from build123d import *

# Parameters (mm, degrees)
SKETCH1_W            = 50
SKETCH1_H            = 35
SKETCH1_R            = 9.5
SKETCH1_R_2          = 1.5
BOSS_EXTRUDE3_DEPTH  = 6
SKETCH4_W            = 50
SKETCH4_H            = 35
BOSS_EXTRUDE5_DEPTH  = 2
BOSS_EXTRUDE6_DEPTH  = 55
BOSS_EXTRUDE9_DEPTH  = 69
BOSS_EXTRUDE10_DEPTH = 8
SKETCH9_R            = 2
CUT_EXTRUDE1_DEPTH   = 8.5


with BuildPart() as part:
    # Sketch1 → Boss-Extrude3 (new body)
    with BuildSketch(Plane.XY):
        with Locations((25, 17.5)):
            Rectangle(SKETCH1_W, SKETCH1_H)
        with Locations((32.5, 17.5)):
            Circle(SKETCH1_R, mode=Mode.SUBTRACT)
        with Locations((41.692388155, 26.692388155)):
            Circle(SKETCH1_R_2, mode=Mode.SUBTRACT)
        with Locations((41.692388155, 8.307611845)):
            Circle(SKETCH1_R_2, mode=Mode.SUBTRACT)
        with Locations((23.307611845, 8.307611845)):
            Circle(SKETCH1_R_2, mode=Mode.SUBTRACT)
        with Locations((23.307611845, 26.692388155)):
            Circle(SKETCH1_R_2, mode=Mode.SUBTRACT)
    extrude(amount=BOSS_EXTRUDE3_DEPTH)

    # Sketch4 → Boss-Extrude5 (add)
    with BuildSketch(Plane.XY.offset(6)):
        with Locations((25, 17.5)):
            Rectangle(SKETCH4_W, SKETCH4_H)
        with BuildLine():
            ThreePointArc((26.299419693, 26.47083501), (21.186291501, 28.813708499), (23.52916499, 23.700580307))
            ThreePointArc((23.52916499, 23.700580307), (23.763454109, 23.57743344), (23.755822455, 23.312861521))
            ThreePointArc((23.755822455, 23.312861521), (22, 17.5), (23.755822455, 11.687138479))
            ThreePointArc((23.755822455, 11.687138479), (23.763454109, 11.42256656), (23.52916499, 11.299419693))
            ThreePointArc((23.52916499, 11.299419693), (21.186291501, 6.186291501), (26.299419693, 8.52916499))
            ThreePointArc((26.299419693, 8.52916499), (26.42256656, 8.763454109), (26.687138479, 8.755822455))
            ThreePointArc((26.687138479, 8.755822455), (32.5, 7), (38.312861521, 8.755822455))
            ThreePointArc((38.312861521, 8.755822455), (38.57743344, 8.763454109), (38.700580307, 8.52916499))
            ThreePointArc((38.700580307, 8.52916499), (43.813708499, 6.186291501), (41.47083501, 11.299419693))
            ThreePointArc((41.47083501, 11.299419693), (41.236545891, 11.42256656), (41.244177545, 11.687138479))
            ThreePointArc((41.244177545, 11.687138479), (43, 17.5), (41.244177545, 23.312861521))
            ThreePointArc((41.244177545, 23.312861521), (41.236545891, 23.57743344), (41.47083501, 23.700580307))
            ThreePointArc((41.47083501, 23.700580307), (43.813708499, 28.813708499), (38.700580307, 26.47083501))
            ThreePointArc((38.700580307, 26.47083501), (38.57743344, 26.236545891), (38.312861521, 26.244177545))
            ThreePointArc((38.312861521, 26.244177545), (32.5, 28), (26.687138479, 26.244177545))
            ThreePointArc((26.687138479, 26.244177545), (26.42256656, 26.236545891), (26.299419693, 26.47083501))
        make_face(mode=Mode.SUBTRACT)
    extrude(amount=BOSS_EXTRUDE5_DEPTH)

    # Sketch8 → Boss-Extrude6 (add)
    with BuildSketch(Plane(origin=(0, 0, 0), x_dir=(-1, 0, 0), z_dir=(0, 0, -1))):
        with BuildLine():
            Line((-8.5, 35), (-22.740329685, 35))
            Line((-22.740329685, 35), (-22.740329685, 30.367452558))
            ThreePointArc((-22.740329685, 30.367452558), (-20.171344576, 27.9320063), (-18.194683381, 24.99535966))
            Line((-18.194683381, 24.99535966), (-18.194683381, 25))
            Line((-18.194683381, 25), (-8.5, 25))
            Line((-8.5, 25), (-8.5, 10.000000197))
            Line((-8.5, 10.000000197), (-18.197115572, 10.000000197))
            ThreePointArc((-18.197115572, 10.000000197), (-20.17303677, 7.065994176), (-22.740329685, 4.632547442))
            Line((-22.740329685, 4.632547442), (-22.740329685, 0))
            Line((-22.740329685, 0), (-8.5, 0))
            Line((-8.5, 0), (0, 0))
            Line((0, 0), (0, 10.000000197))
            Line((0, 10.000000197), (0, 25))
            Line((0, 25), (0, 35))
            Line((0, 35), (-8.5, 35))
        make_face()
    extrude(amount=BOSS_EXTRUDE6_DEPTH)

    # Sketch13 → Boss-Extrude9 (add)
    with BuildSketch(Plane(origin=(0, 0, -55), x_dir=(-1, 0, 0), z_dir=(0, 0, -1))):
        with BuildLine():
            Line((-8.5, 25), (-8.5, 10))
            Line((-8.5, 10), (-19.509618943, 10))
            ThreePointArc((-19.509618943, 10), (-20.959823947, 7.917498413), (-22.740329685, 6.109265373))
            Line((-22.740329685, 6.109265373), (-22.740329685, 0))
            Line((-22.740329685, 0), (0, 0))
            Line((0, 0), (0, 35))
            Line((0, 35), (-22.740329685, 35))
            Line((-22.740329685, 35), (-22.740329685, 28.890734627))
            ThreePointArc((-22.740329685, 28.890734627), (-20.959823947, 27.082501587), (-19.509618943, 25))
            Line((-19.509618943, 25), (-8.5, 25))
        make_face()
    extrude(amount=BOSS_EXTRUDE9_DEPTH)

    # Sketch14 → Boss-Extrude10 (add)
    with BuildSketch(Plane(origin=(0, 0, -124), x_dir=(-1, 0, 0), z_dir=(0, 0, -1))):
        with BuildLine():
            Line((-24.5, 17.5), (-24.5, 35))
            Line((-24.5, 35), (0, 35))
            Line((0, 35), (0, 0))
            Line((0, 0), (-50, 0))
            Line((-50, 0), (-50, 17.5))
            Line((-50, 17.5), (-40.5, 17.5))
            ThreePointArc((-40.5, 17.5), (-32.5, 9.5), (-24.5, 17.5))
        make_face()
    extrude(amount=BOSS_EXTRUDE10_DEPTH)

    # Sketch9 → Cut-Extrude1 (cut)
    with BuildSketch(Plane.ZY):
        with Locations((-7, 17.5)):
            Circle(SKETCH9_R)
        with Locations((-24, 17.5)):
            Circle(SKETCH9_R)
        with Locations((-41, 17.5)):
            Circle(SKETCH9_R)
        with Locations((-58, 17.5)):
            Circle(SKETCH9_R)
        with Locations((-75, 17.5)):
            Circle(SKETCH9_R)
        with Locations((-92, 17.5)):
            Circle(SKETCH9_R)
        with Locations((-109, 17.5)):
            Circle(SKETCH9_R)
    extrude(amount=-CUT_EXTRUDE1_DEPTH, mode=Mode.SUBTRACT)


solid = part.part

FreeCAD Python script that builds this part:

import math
import FreeCAD as App
import Part
import Sketcher
Q = App.Units.Quantity

doc = App.newDocument("Part")
params = doc.addObject("Spreadsheet::Sheet", "Params")
for row, (alias, value) in enumerate([
    ("sketch1_diameter", "3 mm"),
    ("sketch1_diameter2", "19 mm"),
    ("sketch1_width", "50 mm"),
    ("sketch1_height", "35 mm"),
    ("pad1_length", "6 mm"),
    ("sketch2_radius", "3 mm"),
    ("sketch2_radius2", "3 mm"),
    ("sketch2_radius3", "3 mm"),
    ("sketch2_radius4", "3 mm"),
    ("sketch2_radius5", "10.5 mm"),
    ("pad2_length", "2 mm"),
    ("sketch3_height", "15 mm"),
    ("sketch3_height2", "35 mm"),
    ("sketch3_radius", "16.15 mm"),
    ("pad3_length", "55 mm"),
    ("sketch4_radius", "15 mm"),
    ("sketch4_height", "15 mm"),
    ("sketch4_height2", "35 mm"),
    ("pad4_length", "69 mm"),
    ("sketch5_radius", "8 mm"),
    ("sketch5_width", "50 mm"),
    ("sketch5_height", "35 mm"),
    ("sketch5_width2", "9.5 mm"),
    ("pad5_length", "8 mm"),
    ("sketch6_diameter", "4 mm"),
    ("pocket1_length", "8.5 mm"),
], start=1):
    params.set(f"A{row}", alias)
    params.set(f"B{row}", "=" + value)
    params.setAlias(f"B{row}", alias)

body = doc.addObject("PartDesign::Body", "Body")

# Sketch on XY plane
sketch1 = body.newObject("Sketcher::SketchObject", "Sketch")
sketch1.AttachmentSupport = (doc.getObject("XY_Plane"), [""])
sketch1.MapMode = "FlatFace"
sketch1.addGeometry(Part.LineSegment(App.Vector(0, 35, 0), App.Vector(0, 0, 0)), False)
sketch1.addGeometry(Part.LineSegment(App.Vector(0, 0, 0), App.Vector(50, 0, 0)), False)
sketch1.addGeometry(Part.LineSegment(App.Vector(50, 0, 0), App.Vector(50, 35, 0)), False)
sketch1.addGeometry(Part.LineSegment(App.Vector(50, 35, 0), App.Vector(0, 35, 0)), False)
sketch1.addGeometry(Part.Circle(App.Vector(23.3, 8.3, 0), App.Vector(0, 0, 1), 1.5), False)
sketch1.addGeometry(Part.Circle(App.Vector(41.7, 8.3, 0), App.Vector(0, 0, 1), 1.5), False)
sketch1.addGeometry(Part.Circle(App.Vector(32.5, 17.5, 0), App.Vector(0, 0, 1), 9.5), False)
sketch1.addGeometry(Part.Circle(App.Vector(23.3, 26.7, 0), App.Vector(0, 0, 1), 1.5), False)
sketch1.addGeometry(Part.Circle(App.Vector(41.7, 26.7, 0), App.Vector(0, 0, 1), 1.5), False)
sketch1.addConstraint(Sketcher.Constraint("Coincident", 0, 2, 1, 1))
sketch1.addConstraint(Sketcher.Constraint("Coincident", 1, 2, 2, 1))
sketch1.addConstraint(Sketcher.Constraint("Coincident", 2, 2, 3, 1))
sketch1.addConstraint(Sketcher.Constraint("Coincident", 3, 2, 0, 1))
sketch1.addConstraint(Sketcher.Constraint("Vertical", 0))
sketch1.addConstraint(Sketcher.Constraint("Horizontal", 1))
sketch1.addConstraint(Sketcher.Constraint("Vertical", 2))
sketch1.addConstraint(Sketcher.Constraint("Horizontal", 3))
sketch1.addConstraint(Sketcher.Constraint("Coincident", 0, 2, -1, 1))
sketch1.addConstraint(Sketcher.Constraint("Equal", 4, 5))
sketch1.addConstraint(Sketcher.Constraint("Equal", 5, 7))
sketch1.addConstraint(Sketcher.Constraint("Equal", 7, 8))
sketch1.addConstraint(Sketcher.Constraint("Horizontal", 4, 3, 5, 3))
sketch1.addConstraint(Sketcher.Constraint("Horizontal", 7, 3, 8, 3))
sketch1.addConstraint(Sketcher.Constraint("Vertical", 4, 3, 7, 3))
sketch1.addConstraint(Sketcher.Constraint("Vertical", 5, 3, 8, 3))
sketch1.addConstraint(Sketcher.Constraint("Diameter", 4, Q("3 mm")))
sketch1.addConstraint(Sketcher.Constraint("Diameter", 6, Q("19 mm")))
sketch1.addConstraint(Sketcher.Constraint("DistanceX", 1, 1, 1, 2, Q("50 mm")))
sketch1.addConstraint(Sketcher.Constraint("DistanceY", 0, 2, 0, 1, Q("35 mm")))
sketch1.addConstraint(Sketcher.Constraint("DistanceX", -1, 1, 6, 3, Q("32.5 mm")))
sketch1.addConstraint(Sketcher.Constraint("DistanceY", -1, 1, 6, 3, Q("17.5 mm")))
sketch1.addConstraint(Sketcher.Constraint("DistanceX", -1, 1, 4, 3, Q("23.307612 mm")))
sketch1.addConstraint(Sketcher.Constraint("DistanceY", -1, 1, 4, 3, Q("8.307612 mm")))
sketch1.addConstraint(Sketcher.Constraint("DistanceX", -1, 1, 5, 3, Q("41.692388 mm")))
sketch1.addConstraint(Sketcher.Constraint("DistanceY", -1, 1, 7, 3, Q("26.692388 mm")))
sketch1.setExpression("Constraints[16]", "Params.sketch1_diameter")
sketch1.setExpression("Constraints[17]", "Params.sketch1_diameter2")
sketch1.setExpression("Constraints[18]", "Params.sketch1_width")
sketch1.setExpression("Constraints[19]", "Params.sketch1_height")
pad1 = body.newObject("PartDesign::Pad", "Pad")
pad1.Profile = sketch1
pad1.setExpression("Length", "Params.pad1_length")

# Sketch on XY plane
sketch2 = body.newObject("Sketcher::SketchObject", "Sketch001")
sketch2.AttachmentSupport = (doc.getObject("XY_Plane"), [""])
sketch2.MapMode = "FlatFace"
sketch2.AttachmentOffset = App.Placement(App.Vector(0, 0, 6), App.Rotation())
sketch2.addGeometry(Part.LineSegment(App.Vector(0, 35, 0), App.Vector(0, 0, 0)), False)
sketch2.addGeometry(Part.LineSegment(App.Vector(0, 0, 0), App.Vector(50, 0, 0)), False)
sketch2.addGeometry(Part.LineSegment(App.Vector(50, 0, 0), App.Vector(50, 35, 0)), False)
sketch2.addGeometry(Part.LineSegment(App.Vector(50, 35, 0), App.Vector(0, 35, 0)), False)
sketch2.addGeometry(Part.ArcOfCircle(Part.Circle(App.Vector(23.307612, 26.692388, 0), App.Vector(0, 0, 1), 3), math.radians(-4.235209), math.radians(274.235209)), False)
sketch2.addGeometry(Part.ArcOfCircle(Part.Circle(App.Vector(26.548737, 26.452372, 0), App.Vector(0, 0, 1), 0.25), math.radians(175.764791), math.radians(303.614743)), False)
sketch2.addGeometry(Part.ArcOfCircle(Part.Circle(App.Vector(32.5, 17.5, 0), App.Vector(0, 0, 1), 10.5), math.radians(56.385257), math.radians(123.614743)), False)
sketch2.addGeometry(Part.ArcOfCircle(Part.Circle(App.Vector(38.451263, 26.452372, 0), App.Vector(0, 0, 1), 0.25), math.radians(-123.614743), math.radians(4.235209)), False)
sketch2.addGeometry(Part.ArcOfCircle(Part.Circle(App.Vector(41.692388, 26.692388, 0), App.Vector(0, 0, 1), 3), math.radians(-94.235209), math.radians(184.235209)), False)
sketch2.addGeometry(Part.ArcOfCircle(Part.Circle(App.Vector(41.452372, 23.451263, 0), App.Vector(0, 0, 1), 0.25), math.radians(85.764791), math.radians(213.614743)), False)
sketch2.addGeometry(Part.ArcOfCircle(Part.Circle(App.Vector(32.5, 17.5, 0), App.Vector(0, 0, 1), 10.5), math.radians(-33.614743), math.radians(33.614743)), False)
sketch2.addGeometry(Part.ArcOfCircle(Part.Circle(App.Vector(41.452372, 11.548737, 0), App.Vector(0, 0, 1), 0.25), math.radians(146.385257), math.radians(274.235209)), False)
sketch2.addGeometry(Part.ArcOfCircle(Part.Circle(App.Vector(41.692388, 8.307612, 0), App.Vector(0, 0, 1), 3), math.radians(175.764791), math.radians(454.235209)), False)
sketch2.addGeometry(Part.ArcOfCircle(Part.Circle(App.Vector(38.451263, 8.547628, 0), App.Vector(0, 0, 1), 0.25), math.radians(-4.235209), math.radians(123.614743)), False)
sketch2.addGeometry(Part.ArcOfCircle(Part.Circle(App.Vector(32.5, 17.5, 0), App.Vector(0, 0, 1), 10.5), math.radians(-123.614743), math.radians(-56.385257)), False)
sketch2.addGeometry(Part.ArcOfCircle(Part.Circle(App.Vector(26.548737, 8.547628, 0), App.Vector(0, 0, 1), 0.25), math.radians(56.385257), math.radians(184.235209)), False)
sketch2.addGeometry(Part.ArcOfCircle(Part.Circle(App.Vector(23.307612, 8.307612, 0), App.Vector(0, 0, 1), 3), math.radians(85.764791), math.radians(364.235209)), False)
sketch2.addGeometry(Part.ArcOfCircle(Part.Circle(App.Vector(23.547628, 11.548737, 0), App.Vector(0, 0, 1), 0.25), math.radians(-94.235209), math.radians(33.614743)), False)
sketch2.addGeometry(Part.ArcOfCircle(Part.Circle(App.Vector(32.5, 17.5, 0), App.Vector(0, 0, 1), 10.5), math.radians(146.385257), math.radians(213.614743)), False)
sketch2.addGeometry(Part.ArcOfCircle(Part.Circle(App.Vector(23.547628, 23.451263, 0), App.Vector(0, 0, 1), 0.25), math.radians(-33.614743), math.radians(94.235209)), False)
sketch2.addConstraint(Sketcher.Constraint("Coincident", 0, 2, 1, 1))
sketch2.addConstraint(Sketcher.Constraint("Coincident", 1, 2, 2, 1))
sketch2.addConstraint(Sketcher.Constraint("Coincident", 2, 2, 3, 1))
sketch2.addConstraint(Sketcher.Constraint("Coincident", 3, 2, 0, 1))
sketch2.addConstraint(Sketcher.Constraint("Coincident", 4, 1, 5, 1))
sketch2.addConstraint(Sketcher.Constraint("Coincident", 5, 2, 6, 2))
sketch2.addConstraint(Sketcher.Constraint("Coincident", 6, 1, 7, 1))
sketch2.addConstraint(Sketcher.Constraint("Coincident", 7, 2, 8, 2))
sketch2.addConstraint(Sketcher.Constraint("Coincident", 8, 1, 9, 1))
sketch2.addConstraint(Sketcher.Constraint("Coincident", 9, 2, 10, 2))
sketch2.addConstraint(Sketcher.Constraint("Coincident", 10, 1, 11, 1))
sketch2.addConstraint(Sketcher.Constraint("Coincident", 11, 2, 12, 2))
sketch2.addConstraint(Sketcher.Constraint("Coincident", 12, 1, 13, 1))
sketch2.addConstraint(Sketcher.Constraint("Coincident", 13, 2, 14, 2))
sketch2.addConstraint(Sketcher.Constraint("Coincident", 14, 1, 15, 1))
sketch2.addConstraint(Sketcher.Constraint("Coincident", 15, 2, 16, 2))
sketch2.addConstraint(Sketcher.Constraint("Coincident", 16, 1, 17, 1))
sketch2.addConstraint(Sketcher.Constraint("Coincident", 17, 2, 18, 2))
sketch2.addConstraint(Sketcher.Constraint("Coincident", 18, 1, 19, 1))
sketch2.addConstraint(Sketcher.Constraint("Coincident", 19, 2, 4, 2))
sketch2.addConstraint(Sketcher.Constraint("Vertical", 0))
sketch2.addConstraint(Sketcher.Constraint("Horizontal", 1))
sketch2.addConstraint(Sketcher.Constraint("Vertical", 2))
sketch2.addConstraint(Sketcher.Constraint("Horizontal", 3))
sketch2.addConstraint(Sketcher.Constraint("Coincident", 0, 2, -1, 1))
sketch2.addConstraint(Sketcher.Constraint("Coincident", 10, 3, 6, 3))
sketch2.addConstraint(Sketcher.Constraint("Coincident", 14, 3, 6, 3))
sketch2.addConstraint(Sketcher.Constraint("Coincident", 18, 3, 6, 3))
sketch2.addConstraint(Sketcher.Constraint("Radius", 4, Q("3 mm")))
sketch2.addConstraint(Sketcher.Constraint("Radius", 8, Q("3 mm")))
sketch2.addConstraint(Sketcher.Constraint("Radius", 12, Q("3 mm")))
sketch2.addConstraint(Sketcher.Constraint("Radius", 16, Q("3 mm")))
sketch2.addConstraint(Sketcher.Constraint("Radius", 6, Q("10.5 mm")))
sketch2.addConstraint(Sketcher.Constraint("Radius", 10, Q("10.5 mm")))
sketch2.addConstraint(Sketcher.Constraint("Radius", 14, Q("10.5 mm")))
sketch2.addConstraint(Sketcher.Constraint("Radius", 18, Q("10.5 mm")))
sketch2.addConstraint(Sketcher.Constraint("DistanceX", 1, 1, 1, 2, Q("50 mm")))
sketch2.addConstraint(Sketcher.Constraint("DistanceY", 0, 2, 0, 1, Q("35 mm")))
sketch2.addConstraint(Sketcher.Constraint("Radius", 5, Q("0.25 mm")))
sketch2.addConstraint(Sketcher.Constraint("Radius", 7, Q("0.25 mm")))
sketch2.addConstraint(Sketcher.Constraint("Radius", 9, Q("0.25 mm")))
sketch2.addConstraint(Sketcher.Constraint("Radius", 11, Q("0.25 mm")))
sketch2.addConstraint(Sketcher.Constraint("Radius", 13, Q("0.25 mm")))
sketch2.addConstraint(Sketcher.Constraint("Radius", 15, Q("0.25 mm")))
sketch2.addConstraint(Sketcher.Constraint("Radius", 17, Q("0.25 mm")))
sketch2.addConstraint(Sketcher.Constraint("Radius", 19, Q("0.25 mm")))
sketch2.addConstraint(Sketcher.Constraint("DistanceX", -1, 1, 6, 3, Q("32.5 mm")))
sketch2.addConstraint(Sketcher.Constraint("DistanceY", -1, 1, 6, 3, Q("17.5 mm")))
sketch2.addConstraint(Sketcher.Constraint("DistanceX", 5, 3, 5, 2, Q("0.138401 mm")))
sketch2.addConstraint(Sketcher.Constraint("DistanceX", 6, 1, 7, 3, Q("0.138401 mm")))
sketch2.addConstraint(Sketcher.Constraint("DistanceY", 9, 2, 9, 3, Q("0.138401 mm")))
sketch2.addConstraint(Sketcher.Constraint("DistanceY", 11, 3, 10, 1, Q("0.138401 mm")))
sketch2.addConstraint(Sketcher.Constraint("DistanceX", 13, 2, 13, 3, Q("0.138401 mm")))
sketch2.addConstraint(Sketcher.Constraint("DistanceX", 15, 3, 14, 1, Q("0.138401 mm")))
sketch2.addConstraint(Sketcher.Constraint("DistanceY", 17, 3, 17, 2, Q("0.138401 mm")))
sketch2.addConstraint(Sketcher.Constraint("DistanceY", 18, 1, 19, 3, Q("0.138401 mm")))
sketch2.addConstraint(Sketcher.Constraint("DistanceX", -1, 1, 4, 3, Q("23.307612 mm")))
sketch2.addConstraint(Sketcher.Constraint("DistanceY", -1, 1, 4, 3, Q("26.692388 mm")))
sketch2.addConstraint(Sketcher.Constraint("DistanceX", -1, 1, 8, 3, Q("41.692388 mm")))
sketch2.addConstraint(Sketcher.Constraint("DistanceY", -1, 1, 8, 3, Q("26.692388 mm")))
sketch2.addConstraint(Sketcher.Constraint("DistanceX", -1, 1, 12, 3, Q("41.692388 mm")))
sketch2.addConstraint(Sketcher.Constraint("DistanceY", -1, 1, 12, 3, Q("8.307612 mm")))
sketch2.addConstraint(Sketcher.Constraint("DistanceX", -1, 1, 16, 3, Q("23.307612 mm")))
sketch2.addConstraint(Sketcher.Constraint("DistanceY", -1, 1, 16, 3, Q("8.307612 mm")))
sketch2.addConstraint(Sketcher.Constraint("DistanceX", -1, 1, 4, 1, Q("26.29942 mm")))
sketch2.addConstraint(Sketcher.Constraint("DistanceX", -1, 1, 7, 2, Q("38.70058 mm")))
sketch2.addConstraint(Sketcher.Constraint("DistanceY", -1, 1, 8, 1, Q("23.70058 mm")))
sketch2.addConstraint(Sketcher.Constraint("DistanceY", -1, 1, 11, 2, Q("11.29942 mm")))
sketch2.addConstraint(Sketcher.Constraint("DistanceX", -1, 1, 12, 1, Q("38.70058 mm")))
sketch2.addConstraint(Sketcher.Constraint("DistanceX", -1, 1, 15, 2, Q("26.29942 mm")))
sketch2.addConstraint(Sketcher.Constraint("DistanceY", -1, 1, 16, 1, Q("11.29942 mm")))
sketch2.addConstraint(Sketcher.Constraint("DistanceY", -1, 1, 19, 2, Q("23.70058 mm")))
sketch2.setExpression("Constraints[28]", "Params.sketch2_radius")
sketch2.setExpression("Constraints[29]", "Params.sketch2_radius2")
sketch2.setExpression("Constraints[30]", "Params.sketch2_radius3")
sketch2.setExpression("Constraints[31]", "Params.sketch2_radius4")
sketch2.setExpression("Constraints[32]", "Params.sketch2_radius5")
pad2 = body.newObject("PartDesign::Pad", "Pad001")
pad2.Profile = sketch2
pad2.setExpression("Length", "Params.pad2_length")

# Sketch on XY plane
sketch3 = body.newObject("Sketcher::SketchObject", "Sketch002")
sketch3.AttachmentSupport = (doc.getObject("XY_Plane"), [""])
sketch3.MapMode = "FlatFace"
sketch3.addGeometry(Part.LineSegment(App.Vector(22.7403, 35, 0), App.Vector(22.7403, 30.3675, 0)), False)
sketch3.addGeometry(Part.ArcOfCircle(Part.Circle(App.Vector(32.5, 17.5, 0), App.Vector(0, 0, 1), 16.15), math.radians(127), math.radians(152)), False)
sketch3.addGeometry(Part.LineSegment(App.Vector(18.1947, 24.9954, 0), App.Vector(18.1947, 25, 0)), False)
sketch3.addGeometry(Part.LineSegment(App.Vector(18.1947, 25, 0), App.Vector(8.5, 25, 0)), False)
sketch3.addGeometry(Part.LineSegment(App.Vector(8.5, 25, 0), App.Vector(8.5, 10, 0)), False)
sketch3.addGeometry(Part.LineSegment(App.Vector(8.5, 10, 0), App.Vector(18.1971, 10, 0)), False)
sketch3.addGeometry(Part.ArcOfCircle(Part.Circle(App.Vector(32.5, 17.5, 0), App.Vector(0, 0, 1), 16.15), math.radians(-152), math.radians(-127)), False)
sketch3.addGeometry(Part.LineSegment(App.Vector(22.7403, 4.6325, 0), App.Vector(22.7403, 0, 0)), False)
sketch3.addGeometry(Part.LineSegment(App.Vector(22.7403, 0, 0), App.Vector(0, 0, 0)), False)
sketch3.addGeometry(Part.LineSegment(App.Vector(0, 0, 0), App.Vector(0, 35, 0)), False)
sketch3.addGeometry(Part.LineSegment(App.Vector(0, 35, 0), App.Vector(22.7403, 35, 0)), False)
sketch3.addConstraint(Sketcher.Constraint("Coincident", 0, 2, 1, 1))
sketch3.addConstraint(Sketcher.Constraint("Coincident", 1, 2, 2, 1))
sketch3.addConstraint(Sketcher.Constraint("Coincident", 2, 2, 3, 1))
sketch3.addConstraint(Sketcher.Constraint("Coincident", 3, 2, 4, 1))
sketch3.addConstraint(Sketcher.Constraint("Coincident", 4, 2, 5, 1))
sketch3.addConstraint(Sketcher.Constraint("Coincident", 5, 2, 6, 1))
sketch3.addConstraint(Sketcher.Constraint("Coincident", 6, 2, 7, 1))
sketch3.addConstraint(Sketcher.Constraint("Coincident", 7, 2, 8, 1))
sketch3.addConstraint(Sketcher.Constraint("Coincident", 8, 2, 9, 1))
sketch3.addConstraint(Sketcher.Constraint("Coincident", 9, 2, 10, 1))
sketch3.addConstraint(Sketcher.Constraint("Coincident", 10, 2, 0, 1))
sketch3.addConstraint(Sketcher.Constraint("Vertical", 0))
sketch3.addConstraint(Sketcher.Constraint("Vertical", 2))
sketch3.addConstraint(Sketcher.Constraint("Horizontal", 3))
sketch3.addConstraint(Sketcher.Constraint("Vertical", 4))
sketch3.addConstraint(Sketcher.Constraint("Horizontal", 5))
sketch3.addConstraint(Sketcher.Constraint("Vertical", 7))
sketch3.addConstraint(Sketcher.Constraint("Horizontal", 8))
sketch3.addConstraint(Sketcher.Constraint("Vertical", 9))
sketch3.addConstraint(Sketcher.Constraint("Horizontal", 10))
sketch3.addConstraint(Sketcher.Constraint("Coincident", 8, 2, -1, 1))
sketch3.addConstraint(Sketcher.Constraint("Coincident", 6, 3, 1, 3))
sketch3.addConstraint(Sketcher.Constraint("Equal", 1, 6))
sketch3.addConstraint(Sketcher.Constraint("Vertical", 0, 2, 6, 2))
sketch3.addConstraint(Sketcher.Constraint("Equal", 0, 7))
sketch3.addConstraint(Sketcher.Constraint("DistanceY", 4, 2, 4, 1, Q("15 mm")))
sketch3.addConstraint(Sketcher.Constraint("DistanceY", 9, 1, 9, 2, Q("35 mm")))
sketch3.addConstraint(Sketcher.Constraint("Radius", 1, Q("16.15 mm")))
sketch3.addConstraint(Sketcher.Constraint("DistanceY", -1, 1, 2, 2, Q("25 mm")))
sketch3.addConstraint(Sketcher.Constraint("DistanceX", 3, 2, 1, 3, Q("24 mm")))
sketch3.addConstraint(Sketcher.Constraint("DistanceX", -1, 1, 1, 3, Q("32.5 mm")))
sketch3.addConstraint(Sketcher.Constraint("DistanceX", 8, 2, 8, 1, Q("22.74033 mm")))
sketch3.addConstraint(Sketcher.Constraint("DistanceY", 2, 1, 2, 2, Q("0.00464 mm")))
sketch3.setExpression("Constraints[25]", "Params.sketch3_height")
sketch3.setExpression("Constraints[26]", "Params.sketch3_height2")
sketch3.setExpression("Constraints[27]", "Params.sketch3_radius")
pad3 = body.newObject("PartDesign::Pad", "Pad002")
pad3.Profile = sketch3
pad3.setExpression("Length", "Params.pad3_length")
pad3.Reversed = True

# Sketch on XY plane
sketch4 = body.newObject("Sketcher::SketchObject", "Sketch003")
sketch4.AttachmentSupport = (doc.getObject("XY_Plane"), [""])
sketch4.MapMode = "FlatFace"
sketch4.AttachmentOffset = App.Placement(App.Vector(0, 0, -55), App.Rotation())
sketch4.addGeometry(Part.LineSegment(App.Vector(8, 25, 0), App.Vector(8, 10, 0)), False)
sketch4.addGeometry(Part.LineSegment(App.Vector(8, 10, 0), App.Vector(20, 10, 0)), False)
sketch4.addGeometry(Part.ArcOfCircle(Part.Circle(App.Vector(33, 18, 0), App.Vector(0, 0, 1), 15), math.radians(-150), math.radians(-130.59)), False)
sketch4.addGeometry(Part.LineSegment(App.Vector(23, 6, 0), App.Vector(23, 0, 0)), False)
sketch4.addGeometry(Part.LineSegment(App.Vector(23, 0, 0), App.Vector(0, 0, 0)), False)
sketch4.addGeometry(Part.LineSegment(App.Vector(0, 0, 0), App.Vector(0, 35, 0)), False)
sketch4.addGeometry(Part.LineSegment(App.Vector(0, 35, 0), App.Vector(23, 35, 0)), False)
sketch4.addGeometry(Part.LineSegment(App.Vector(23, 35, 0), App.Vector(23, 29, 0)), False)
sketch4.addGeometry(Part.ArcOfCircle(Part.Circle(App.Vector(33, 17, 0), App.Vector(0, 0, 1), 15), math.radians(130.59), math.radians(150)), False)
sketch4.addGeometry(Part.LineSegment(App.Vector(20, 25, 0), App.Vector(8, 25, 0)), False)
sketch4.addConstraint(Sketcher.Constraint("Coincident", 0, 2, 1, 1))
sketch4.addConstraint(Sketcher.Constraint("Coincident", 1, 2, 2, 1))
sketch4.addConstraint(Sketcher.Constraint("Coincident", 2, 2, 3, 1))
sketch4.addConstraint(Sketcher.Constraint("Coincident", 3, 2, 4, 1))
sketch4.addConstraint(Sketcher.Constraint("Coincident", 4, 2, 5, 1))
sketch4.addConstraint(Sketcher.Constraint("Coincident", 5, 2, 6, 1))
sketch4.addConstraint(Sketcher.Constraint("Coincident", 6, 2, 7, 1))
sketch4.addConstraint(Sketcher.Constraint("Coincident", 7, 2, 8, 1))
sketch4.addConstraint(Sketcher.Constraint("Coincident", 8, 2, 9, 1))
sketch4.addConstraint(Sketcher.Constraint("Coincident", 9, 2, 0, 1))
sketch4.addConstraint(Sketcher.Constraint("Vertical", 0))
sketch4.addConstraint(Sketcher.Constraint("Horizontal", 1))
sketch4.addConstraint(Sketcher.Constraint("Vertical", 3))
sketch4.addConstraint(Sketcher.Constraint("Horizontal", 4))
sketch4.addConstraint(Sketcher.Constraint("Vertical", 5))
sketch4.addConstraint(Sketcher.Constraint("Horizontal", 6))
sketch4.addConstraint(Sketcher.Constraint("Vertical", 7))
sketch4.addConstraint(Sketcher.Constraint("Horizontal", 9))
sketch4.addConstraint(Sketcher.Constraint("Coincident", 4, 2, -1, 1))
sketch4.addConstraint(Sketcher.Constraint("Coincident", 8, 3, 2, 3))
sketch4.addConstraint(Sketcher.Constraint("Equal", 2, 8))
sketch4.addConstraint(Sketcher.Constraint("Vertical", 3, 2, 6, 2))
sketch4.addConstraint(Sketcher.Constraint("Vertical", 1, 2, 8, 2))
sketch4.addConstraint(Sketcher.Constraint("Equal", 3, 7))
sketch4.addConstraint(Sketcher.Constraint("Radius", 2, Q("15 mm")))
sketch4.addConstraint(Sketcher.Constraint("DistanceY", 0, 2, 0, 1, Q("15 mm")))
sketch4.addConstraint(Sketcher.Constraint("DistanceY", 5, 1, 5, 2, Q("35 mm")))
sketch4.addConstraint(Sketcher.Constraint("DistanceX", 0, 2, 8, 3, Q("24 mm")))
sketch4.addConstraint(Sketcher.Constraint("DistanceX", -1, 1, 2, 3, Q("32.5 mm")))
sketch4.addConstraint(Sketcher.Constraint("DistanceX", 4, 2, 4, 1, Q("22.74033 mm")))
sketch4.setExpression("Constraints[24]", "Params.sketch4_radius")
sketch4.setExpression("Constraints[25]", "Params.sketch4_height")
sketch4.setExpression("Constraints[26]", "Params.sketch4_height2")
pad4 = body.newObject("PartDesign::Pad", "Pad003")
pad4.Profile = sketch4
pad4.setExpression("Length", "Params.pad4_length")
pad4.Reversed = True

# Sketch on XY plane
sketch5 = body.newObject("Sketcher::SketchObject", "Sketch004")
sketch5.AttachmentSupport = (doc.getObject("XY_Plane"), [""])
sketch5.MapMode = "FlatFace"
sketch5.AttachmentOffset = App.Placement(App.Vector(0, 0, -124), App.Rotation())
sketch5.addGeometry(Part.LineSegment(App.Vector(24, 35, 0), App.Vector(24, 18, 0)), False)
sketch5.addGeometry(Part.ArcOfCircle(Part.Circle(App.Vector(32, 18, 0), App.Vector(0, 0, 1), 8), math.radians(180), math.radians(360)), False)
sketch5.addGeometry(Part.LineSegment(App.Vector(40, 18, 0), App.Vector(50, 18, 0)), False)
sketch5.addGeometry(Part.LineSegment(App.Vector(50, 18, 0), App.Vector(50, 0, 0)), False)
sketch5.addGeometry(Part.LineSegment(App.Vector(50, 0, 0), App.Vector(0, 0, 0)), False)
sketch5.addGeometry(Part.LineSegment(App.Vector(0, 0, 0), App.Vector(0, 35, 0)), False)
sketch5.addGeometry(Part.LineSegment(App.Vector(0, 35, 0), App.Vector(24, 35, 0)), False)
sketch5.addConstraint(Sketcher.Constraint("Tangent", 0, 2, 1, 1))
sketch5.addConstraint(Sketcher.Constraint("Coincident", 1, 2, 2, 1))
sketch5.addConstraint(Sketcher.Constraint("Coincident", 2, 2, 3, 1))
sketch5.addConstraint(Sketcher.Constraint("Coincident", 3, 2, 4, 1))
sketch5.addConstraint(Sketcher.Constraint("Coincident", 4, 2, 5, 1))
sketch5.addConstraint(Sketcher.Constraint("Coincident", 5, 2, 6, 1))
sketch5.addConstraint(Sketcher.Constraint("Coincident", 6, 2, 0, 1))
sketch5.addConstraint(Sketcher.Constraint("Vertical", 0))
sketch5.addConstraint(Sketcher.Constraint("Horizontal", 2))
sketch5.addConstraint(Sketcher.Constraint("Vertical", 3))
sketch5.addConstraint(Sketcher.Constraint("Horizontal", 4))
sketch5.addConstraint(Sketcher.Constraint("Vertical", 5))
sketch5.addConstraint(Sketcher.Constraint("Horizontal", 6))
sketch5.addConstraint(Sketcher.Constraint("Coincident", 4, 2, -1, 1))
sketch5.addConstraint(Sketcher.Constraint("Horizontal", 0, 2, 1, 2))
sketch5.addConstraint(Sketcher.Constraint("Equal", 0, 3))
sketch5.addConstraint(Sketcher.Constraint("Radius", 1, Q("8 mm")))
sketch5.addConstraint(Sketcher.Constraint("DistanceX", 4, 2, 4, 1, Q("50 mm")))
sketch5.addConstraint(Sketcher.Constraint("DistanceY", 5, 1, 5, 2, Q("35 mm")))
sketch5.addConstraint(Sketcher.Constraint("DistanceX", 2, 1, 2, 2, Q("9.5 mm")))
sketch5.setExpression("Constraints[16]", "Params.sketch5_radius")
sketch5.setExpression("Constraints[17]", "Params.sketch5_width")
sketch5.setExpression("Constraints[18]", "Params.sketch5_height")
sketch5.setExpression("Constraints[19]", "Params.sketch5_width2")
pad5 = body.newObject("PartDesign::Pad", "Pad004")
pad5.Profile = sketch5
pad5.setExpression("Length", "Params.pad5_length")
pad5.Reversed = True

# Sketch on YZ plane
sketch6 = body.newObject("Sketcher::SketchObject", "Sketch005")
sketch6.AttachmentSupport = (doc.getObject("YZ_Plane"), [""])
sketch6.MapMode = "FlatFace"
sketch6.addGeometry(Part.Circle(App.Vector(17.5, -7, 0), App.Vector(0, 0, 1), 2), False)
sketch6.addGeometry(Part.Circle(App.Vector(17.5, -24, 0), App.Vector(0, 0, 1), 2), False)
sketch6.addGeometry(Part.Circle(App.Vector(17.5, -41, 0), App.Vector(0, 0, 1), 2), False)
sketch6.addGeometry(Part.Circle(App.Vector(17.5, -58, 0), App.Vector(0, 0, 1), 2), False)
sketch6.addGeometry(Part.Circle(App.Vector(17.5, -75, 0), App.Vector(0, 0, 1), 2), False)
sketch6.addGeometry(Part.Circle(App.Vector(17.5, -92, 0), App.Vector(0, 0, 1), 2), False)
sketch6.addGeometry(Part.Circle(App.Vector(17.5, -109, 0), App.Vector(0, 0, 1), 2), False)
sketch6.addConstraint(Sketcher.Constraint("Equal", 0, 1))
sketch6.addConstraint(Sketcher.Constraint("Equal", 1, 2))
sketch6.addConstraint(Sketcher.Constraint("Equal", 2, 3))
sketch6.addConstraint(Sketcher.Constraint("Equal", 3, 4))
sketch6.addConstraint(Sketcher.Constraint("Equal", 4, 5))
sketch6.addConstraint(Sketcher.Constraint("Equal", 5, 6))
sketch6.addConstraint(Sketcher.Constraint("Vertical", 0, 3, 1, 3))
sketch6.addConstraint(Sketcher.Constraint("Vertical", 1, 3, 2, 3))
sketch6.addConstraint(Sketcher.Constraint("Vertical", 2, 3, 3, 3))
sketch6.addConstraint(Sketcher.Constraint("Vertical", 3, 3, 4, 3))
sketch6.addConstraint(Sketcher.Constraint("Vertical", 4, 3, 5, 3))
sketch6.addConstraint(Sketcher.Constraint("Vertical", 5, 3, 6, 3))
sketch6.addConstraint(Sketcher.Constraint("Diameter", 0, Q("4 mm")))
sketch6.addConstraint(Sketcher.Constraint("DistanceY", 0, 3, -1, 1, Q("7 mm")))
sketch6.addConstraint(Sketcher.Constraint("DistanceY", 1, 3, -1, 1, Q("24 mm")))
sketch6.addConstraint(Sketcher.Constraint("DistanceY", 2, 3, -1, 1, Q("41 mm")))
sketch6.addConstraint(Sketcher.Constraint("DistanceY", 3, 3, -1, 1, Q("58 mm")))
sketch6.addConstraint(Sketcher.Constraint("DistanceY", 4, 3, -1, 1, Q("75 mm")))
sketch6.addConstraint(Sketcher.Constraint("DistanceY", 5, 3, -1, 1, Q("92 mm")))
sketch6.addConstraint(Sketcher.Constraint("DistanceY", 6, 3, -1, 1, Q("109 mm")))
sketch6.addConstraint(Sketcher.Constraint("DistanceX", -1, 1, 0, 3, Q("17.5 mm")))
sketch6.setExpression("Constraints[12]", "Params.sketch6_diameter")
pocket1 = body.newObject("PartDesign::Pocket", "Pocket")
pocket1.Profile = sketch6
pocket1.setExpression("Length", "Params.pocket1_length")
pocket1.Reversed = True

doc.recompute()
